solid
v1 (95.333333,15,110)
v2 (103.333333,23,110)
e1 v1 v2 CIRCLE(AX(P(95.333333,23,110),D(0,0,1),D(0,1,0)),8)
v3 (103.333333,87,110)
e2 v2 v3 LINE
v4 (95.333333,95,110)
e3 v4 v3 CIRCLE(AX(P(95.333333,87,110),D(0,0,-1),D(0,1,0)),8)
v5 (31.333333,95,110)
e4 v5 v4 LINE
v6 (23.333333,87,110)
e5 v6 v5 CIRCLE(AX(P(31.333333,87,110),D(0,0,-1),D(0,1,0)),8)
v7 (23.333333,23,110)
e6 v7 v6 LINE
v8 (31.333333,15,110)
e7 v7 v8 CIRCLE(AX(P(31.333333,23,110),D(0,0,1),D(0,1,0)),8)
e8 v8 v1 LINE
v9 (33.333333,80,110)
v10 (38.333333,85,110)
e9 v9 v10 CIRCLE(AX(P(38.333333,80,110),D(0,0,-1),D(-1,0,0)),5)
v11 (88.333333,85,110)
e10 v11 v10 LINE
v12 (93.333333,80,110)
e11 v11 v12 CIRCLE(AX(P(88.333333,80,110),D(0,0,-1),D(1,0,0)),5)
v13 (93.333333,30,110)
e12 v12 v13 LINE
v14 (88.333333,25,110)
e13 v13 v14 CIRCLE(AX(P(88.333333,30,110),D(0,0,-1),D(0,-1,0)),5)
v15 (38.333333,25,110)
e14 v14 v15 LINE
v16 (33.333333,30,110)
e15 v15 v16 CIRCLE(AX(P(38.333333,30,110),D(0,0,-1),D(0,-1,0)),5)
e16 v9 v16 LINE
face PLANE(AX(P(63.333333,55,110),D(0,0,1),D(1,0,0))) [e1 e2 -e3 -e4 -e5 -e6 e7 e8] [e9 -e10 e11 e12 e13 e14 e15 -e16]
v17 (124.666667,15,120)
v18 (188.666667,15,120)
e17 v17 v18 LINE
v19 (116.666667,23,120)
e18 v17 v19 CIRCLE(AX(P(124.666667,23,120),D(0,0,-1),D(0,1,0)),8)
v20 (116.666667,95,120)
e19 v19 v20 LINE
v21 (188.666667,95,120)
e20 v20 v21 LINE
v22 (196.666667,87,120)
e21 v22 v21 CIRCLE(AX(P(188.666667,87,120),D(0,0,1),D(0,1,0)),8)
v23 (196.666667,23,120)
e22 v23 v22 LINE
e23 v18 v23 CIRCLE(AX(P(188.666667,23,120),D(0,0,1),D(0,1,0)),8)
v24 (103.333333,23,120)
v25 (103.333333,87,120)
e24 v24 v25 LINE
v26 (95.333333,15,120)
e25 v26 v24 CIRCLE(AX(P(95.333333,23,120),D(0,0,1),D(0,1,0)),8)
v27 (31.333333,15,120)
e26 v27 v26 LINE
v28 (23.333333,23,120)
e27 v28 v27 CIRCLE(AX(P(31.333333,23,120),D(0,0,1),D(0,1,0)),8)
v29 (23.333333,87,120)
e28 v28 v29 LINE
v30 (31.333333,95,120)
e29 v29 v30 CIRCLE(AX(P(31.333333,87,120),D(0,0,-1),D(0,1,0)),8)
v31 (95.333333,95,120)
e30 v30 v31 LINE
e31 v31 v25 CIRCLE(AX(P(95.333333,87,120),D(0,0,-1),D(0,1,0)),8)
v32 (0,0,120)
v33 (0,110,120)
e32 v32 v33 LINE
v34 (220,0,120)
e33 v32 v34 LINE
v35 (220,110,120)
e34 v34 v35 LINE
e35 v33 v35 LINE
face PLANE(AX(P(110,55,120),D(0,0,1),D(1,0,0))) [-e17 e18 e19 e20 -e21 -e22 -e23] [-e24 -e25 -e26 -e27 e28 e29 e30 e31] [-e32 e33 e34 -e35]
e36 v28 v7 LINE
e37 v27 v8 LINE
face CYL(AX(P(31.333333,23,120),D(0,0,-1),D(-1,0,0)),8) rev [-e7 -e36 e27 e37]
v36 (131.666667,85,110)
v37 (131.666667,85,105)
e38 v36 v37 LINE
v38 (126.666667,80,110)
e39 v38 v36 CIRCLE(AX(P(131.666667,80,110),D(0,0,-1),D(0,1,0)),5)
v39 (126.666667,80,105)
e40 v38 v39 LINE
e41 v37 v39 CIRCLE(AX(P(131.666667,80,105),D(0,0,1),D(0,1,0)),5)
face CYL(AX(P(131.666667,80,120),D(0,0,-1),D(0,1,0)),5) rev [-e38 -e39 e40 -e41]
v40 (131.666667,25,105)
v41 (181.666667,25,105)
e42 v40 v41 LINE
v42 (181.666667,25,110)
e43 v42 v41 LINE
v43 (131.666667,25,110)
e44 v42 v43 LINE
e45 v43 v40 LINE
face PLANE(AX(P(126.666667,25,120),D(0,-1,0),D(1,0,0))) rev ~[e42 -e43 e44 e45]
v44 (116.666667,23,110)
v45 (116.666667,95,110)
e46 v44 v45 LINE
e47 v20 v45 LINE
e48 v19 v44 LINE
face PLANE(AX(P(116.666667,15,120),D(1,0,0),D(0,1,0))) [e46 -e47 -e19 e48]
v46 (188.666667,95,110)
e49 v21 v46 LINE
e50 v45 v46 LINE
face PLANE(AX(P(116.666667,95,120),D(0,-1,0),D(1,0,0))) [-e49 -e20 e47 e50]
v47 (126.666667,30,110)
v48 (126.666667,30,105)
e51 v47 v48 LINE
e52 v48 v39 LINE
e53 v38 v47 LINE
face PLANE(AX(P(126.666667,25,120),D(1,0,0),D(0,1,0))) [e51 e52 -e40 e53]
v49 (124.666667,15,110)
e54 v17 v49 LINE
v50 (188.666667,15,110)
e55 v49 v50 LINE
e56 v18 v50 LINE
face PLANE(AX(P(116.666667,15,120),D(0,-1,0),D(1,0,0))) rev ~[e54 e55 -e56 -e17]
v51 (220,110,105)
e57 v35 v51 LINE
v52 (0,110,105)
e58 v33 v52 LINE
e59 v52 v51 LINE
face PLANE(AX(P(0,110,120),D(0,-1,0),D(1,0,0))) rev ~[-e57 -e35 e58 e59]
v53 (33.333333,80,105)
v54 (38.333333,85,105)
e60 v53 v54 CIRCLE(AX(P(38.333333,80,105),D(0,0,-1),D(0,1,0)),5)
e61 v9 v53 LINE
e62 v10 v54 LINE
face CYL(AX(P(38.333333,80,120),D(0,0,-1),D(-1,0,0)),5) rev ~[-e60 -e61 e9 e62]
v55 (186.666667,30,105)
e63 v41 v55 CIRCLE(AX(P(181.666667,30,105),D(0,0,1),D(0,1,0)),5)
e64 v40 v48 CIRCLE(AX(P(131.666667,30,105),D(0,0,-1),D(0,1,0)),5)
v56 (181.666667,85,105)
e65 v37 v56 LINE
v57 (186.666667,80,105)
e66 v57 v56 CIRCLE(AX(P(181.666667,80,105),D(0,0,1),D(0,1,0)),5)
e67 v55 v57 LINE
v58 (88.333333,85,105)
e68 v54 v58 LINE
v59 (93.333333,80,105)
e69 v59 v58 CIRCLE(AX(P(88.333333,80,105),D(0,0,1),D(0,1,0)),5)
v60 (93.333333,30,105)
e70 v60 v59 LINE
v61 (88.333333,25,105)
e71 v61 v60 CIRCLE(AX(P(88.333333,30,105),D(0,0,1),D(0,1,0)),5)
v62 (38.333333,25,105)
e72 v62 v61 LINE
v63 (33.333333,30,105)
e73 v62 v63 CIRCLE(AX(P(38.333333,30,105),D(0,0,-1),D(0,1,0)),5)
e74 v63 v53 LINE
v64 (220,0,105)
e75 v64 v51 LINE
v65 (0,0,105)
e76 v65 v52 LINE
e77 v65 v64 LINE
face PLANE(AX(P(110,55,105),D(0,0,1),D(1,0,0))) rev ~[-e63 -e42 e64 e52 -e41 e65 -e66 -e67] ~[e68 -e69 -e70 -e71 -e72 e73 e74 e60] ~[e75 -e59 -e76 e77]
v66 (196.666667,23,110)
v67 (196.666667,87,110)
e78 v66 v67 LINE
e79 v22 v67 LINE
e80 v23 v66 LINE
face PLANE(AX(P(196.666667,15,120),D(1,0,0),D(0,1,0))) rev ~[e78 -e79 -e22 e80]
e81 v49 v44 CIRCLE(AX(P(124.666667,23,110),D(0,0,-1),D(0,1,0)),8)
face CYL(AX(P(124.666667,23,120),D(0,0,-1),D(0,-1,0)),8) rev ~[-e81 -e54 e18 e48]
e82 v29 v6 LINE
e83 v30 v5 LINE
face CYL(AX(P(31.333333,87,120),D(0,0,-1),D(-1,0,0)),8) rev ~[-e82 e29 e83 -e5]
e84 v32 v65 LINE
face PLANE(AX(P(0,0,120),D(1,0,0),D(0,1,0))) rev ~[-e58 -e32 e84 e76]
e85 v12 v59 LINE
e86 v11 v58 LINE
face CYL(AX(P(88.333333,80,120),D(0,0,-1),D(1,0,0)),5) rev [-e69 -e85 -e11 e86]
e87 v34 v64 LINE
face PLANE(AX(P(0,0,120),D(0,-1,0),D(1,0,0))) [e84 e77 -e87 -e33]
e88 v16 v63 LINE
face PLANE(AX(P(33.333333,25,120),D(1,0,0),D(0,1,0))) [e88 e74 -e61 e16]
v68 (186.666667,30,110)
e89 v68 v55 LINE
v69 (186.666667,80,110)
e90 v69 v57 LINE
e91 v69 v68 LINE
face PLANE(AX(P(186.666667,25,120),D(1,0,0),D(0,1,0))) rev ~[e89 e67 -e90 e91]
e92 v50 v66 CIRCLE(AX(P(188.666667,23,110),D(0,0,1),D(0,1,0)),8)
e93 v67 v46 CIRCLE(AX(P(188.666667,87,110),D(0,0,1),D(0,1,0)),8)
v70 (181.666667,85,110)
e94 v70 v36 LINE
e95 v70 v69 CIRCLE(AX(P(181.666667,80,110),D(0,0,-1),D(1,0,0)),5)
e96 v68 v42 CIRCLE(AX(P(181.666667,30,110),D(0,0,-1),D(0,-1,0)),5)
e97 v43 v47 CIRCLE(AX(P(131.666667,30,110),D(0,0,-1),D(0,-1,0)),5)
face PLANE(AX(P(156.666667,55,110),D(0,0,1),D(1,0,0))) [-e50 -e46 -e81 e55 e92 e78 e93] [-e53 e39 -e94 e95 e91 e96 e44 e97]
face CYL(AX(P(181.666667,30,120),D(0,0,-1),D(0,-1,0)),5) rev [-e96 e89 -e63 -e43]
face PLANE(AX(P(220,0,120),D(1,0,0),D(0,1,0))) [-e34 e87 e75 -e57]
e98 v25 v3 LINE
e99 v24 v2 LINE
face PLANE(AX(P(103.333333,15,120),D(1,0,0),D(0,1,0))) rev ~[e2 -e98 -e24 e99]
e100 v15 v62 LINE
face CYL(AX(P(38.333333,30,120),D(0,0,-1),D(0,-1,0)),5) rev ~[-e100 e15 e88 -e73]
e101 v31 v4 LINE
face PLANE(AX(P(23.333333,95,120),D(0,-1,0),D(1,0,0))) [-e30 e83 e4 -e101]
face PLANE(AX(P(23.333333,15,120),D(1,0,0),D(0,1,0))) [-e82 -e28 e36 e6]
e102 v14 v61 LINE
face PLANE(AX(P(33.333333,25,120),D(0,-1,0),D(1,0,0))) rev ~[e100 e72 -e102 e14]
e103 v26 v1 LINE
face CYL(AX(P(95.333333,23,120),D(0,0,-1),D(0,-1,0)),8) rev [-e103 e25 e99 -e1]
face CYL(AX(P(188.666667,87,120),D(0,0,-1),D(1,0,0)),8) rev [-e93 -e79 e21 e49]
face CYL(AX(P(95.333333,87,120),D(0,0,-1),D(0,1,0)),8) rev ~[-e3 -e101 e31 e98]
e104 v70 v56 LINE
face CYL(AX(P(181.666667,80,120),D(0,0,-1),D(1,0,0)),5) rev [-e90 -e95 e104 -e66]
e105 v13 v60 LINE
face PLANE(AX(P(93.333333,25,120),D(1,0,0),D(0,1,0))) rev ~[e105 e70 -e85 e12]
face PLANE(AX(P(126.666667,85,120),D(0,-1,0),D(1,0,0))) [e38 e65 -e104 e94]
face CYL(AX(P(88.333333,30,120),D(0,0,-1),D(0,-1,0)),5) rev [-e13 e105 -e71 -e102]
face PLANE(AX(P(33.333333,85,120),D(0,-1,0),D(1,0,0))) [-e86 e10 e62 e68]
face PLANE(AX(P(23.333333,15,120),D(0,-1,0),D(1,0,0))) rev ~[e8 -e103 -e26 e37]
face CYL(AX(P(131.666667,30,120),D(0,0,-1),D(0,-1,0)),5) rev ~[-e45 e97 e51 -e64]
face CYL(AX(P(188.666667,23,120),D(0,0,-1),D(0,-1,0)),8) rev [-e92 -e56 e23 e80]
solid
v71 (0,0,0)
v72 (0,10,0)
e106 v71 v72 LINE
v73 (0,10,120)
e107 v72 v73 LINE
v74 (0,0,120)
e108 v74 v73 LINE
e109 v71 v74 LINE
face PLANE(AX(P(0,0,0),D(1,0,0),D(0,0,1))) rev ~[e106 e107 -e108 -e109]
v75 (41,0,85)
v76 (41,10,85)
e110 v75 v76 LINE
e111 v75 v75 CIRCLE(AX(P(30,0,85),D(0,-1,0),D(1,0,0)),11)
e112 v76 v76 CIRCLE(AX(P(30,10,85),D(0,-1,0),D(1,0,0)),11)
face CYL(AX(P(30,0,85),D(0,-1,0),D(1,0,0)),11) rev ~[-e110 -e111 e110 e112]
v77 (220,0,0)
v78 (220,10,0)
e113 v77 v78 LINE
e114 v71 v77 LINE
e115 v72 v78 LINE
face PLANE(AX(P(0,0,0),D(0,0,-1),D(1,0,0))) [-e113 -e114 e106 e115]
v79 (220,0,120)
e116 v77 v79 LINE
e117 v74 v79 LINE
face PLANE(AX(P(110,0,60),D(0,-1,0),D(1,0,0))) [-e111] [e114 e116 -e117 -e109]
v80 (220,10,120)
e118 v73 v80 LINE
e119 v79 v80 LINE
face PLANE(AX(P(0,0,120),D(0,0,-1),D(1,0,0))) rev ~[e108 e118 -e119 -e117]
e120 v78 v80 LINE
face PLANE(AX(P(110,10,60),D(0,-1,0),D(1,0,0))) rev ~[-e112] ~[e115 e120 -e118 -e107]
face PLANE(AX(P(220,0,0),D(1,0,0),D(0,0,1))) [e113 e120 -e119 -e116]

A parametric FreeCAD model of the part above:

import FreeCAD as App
import Part
import Sketcher

V = App.Vector
Q = App.Units.Quantity


def edges_at(feature, points):
    """Names of the edges that pass closest to the given points."""
    edges = feature.Shape.Edges
    near = lambda p: min(range(len(edges)), key=lambda i: edges[i].distToShape(Part.Vertex(*p))[0])
    return sorted({f"Edge{near(p) + 1}" for p in points})


def add_polygon(sketch, points):
    """Adds a closed chain of lines whose ends are joined by coincident constraints."""
    first, n = sketch.GeometryCount, len(points)
    for a, b in zip(points, points[1:] + points[:1]):
        sketch.addGeometry(Part.LineSegment(App.Vector(*a, 0), App.Vector(*b, 0)), False)
    for i in range(n):
        sketch.addConstraint(Sketcher.Constraint("Coincident", first + i, 2, first + (i + 1) % n, 1))

doc = App.newDocument("Part")
body = doc.addObject("PartDesign::Body", "Body")

# Sketch on XY plane
sketch1 = body.newObject("Sketcher::SketchObject", "Sketch")
sketch1.AttachmentSupport = (doc.getObject("XY_Plane"), [""])
sketch1.MapMode = "FlatFace"
sketch1.AttachmentOffset = App.Placement(V(0, 0, 120), App.Rotation())
add_polygon(sketch1, [(0, 110), (0, 0), (220, 0), (220, 110)])  # lines 0-3
add_polygon(sketch1, [(93.333333, 25), (33.333333, 25), (33.333333, 85), (93.333333, 85)])  # lines 4-7
add_polygon(sketch1, [(186.666667, 25), (126.666667, 25), (126.666667, 85), (186.666667, 85)])  # lines 8-11
sketch1.addConstraint([
    Sketcher.Constraint("Vertical", 0),
    Sketcher.Constraint("Horizontal", 1),
    Sketcher.Constraint("Vertical", 2),
    Sketcher.Constraint("Horizontal", 3),
    Sketcher.Constraint("Horizontal", 4),
    Sketcher.Constraint("Vertical", 5),
    Sketcher.Constraint("Horizontal", 6),
    Sketcher.Constraint("Vertical", 7),
    Sketcher.Constraint("Horizontal", 8),
    Sketcher.Constraint("Vertical", 9),
    Sketcher.Constraint("Horizontal", 10),
    Sketcher.Constraint("Vertical", 11),
    Sketcher.Constraint("Coincident", 0, 2, -1, 1),
    Sketcher.Constraint("Horizontal", 7, 2, 8, 2),
    Sketcher.Constraint("Horizontal", 6, 2, 9, 2),
    Sketcher.Constraint("Equal", 6, 8),
    Sketcher.Constraint("Equal", 10, 5),
    Sketcher.Constraint("DistanceX", 1, 1, 1, 2, Q("220 mm")),
    Sketcher.Constraint("DistanceX", 4, 2, 4, 1, Q("60 mm")),
    Sketcher.Constraint("DistanceY", 0, 2, 0, 1, Q("110 mm")),
    Sketcher.Constraint("DistanceY", -1, 1, 4, 2, Q("25 mm")),
    Sketcher.Constraint("DistanceX", -1, 1, 4, 2, Q("33.333333 mm")),
    Sketcher.Constraint("DistanceX", -1, 1, 8, 2, Q("126.666667 mm")),
])
pad1 = body.newObject("PartDesign::Pad", "Pad")
pad1.Profile = sketch1
pad1.Length = 15
pad1.Reversed = True
doc.recompute()

fillet = body.newObject("PartDesign::Fillet", "Fillet")
fillet.Base = (pad1, edges_at(pad1, [
    (93.333, 85, 112.5),
    (186.667, 85, 112.5),
    (33.333, 85, 112.5),
    (33.333, 25, 112.5),
    (93.333, 25, 112.5),
    (186.667, 25, 112.5),
    (126.667, 25, 112.5),
    (126.667, 85, 112.5),
]))
fillet.Radius = 5

# Sketch on XY plane
sketch2 = body.newObject("Sketcher::SketchObject", "Sketch001")
sketch2.AttachmentSupport = (doc.getObject("XY_Plane"), [""])
sketch2.MapMode = "FlatFace"
sketch2.AttachmentOffset = App.Placement(V(0, 0, 120), App.Rotation())
add_polygon(sketch2, [(23.333333, 95), (23.333333, 15), (103.333333, 15), (103.333333, 95)])  # lines 0-3
add_polygon(sketch2, [(116.666667, 95), (116.666667, 15), (196.666667, 15), (196.666667, 95)])  # lines 4-7
sketch2.addConstraint([
    Sketcher.Constraint("Vertical", 0),
    Sketcher.Constraint("Horizontal", 1),
    Sketcher.Constraint("Vertical", 2),
    Sketcher.Constraint("Horizontal", 3),
    Sketcher.Constraint("Vertical", 4),
    Sketcher.Constraint("Horizontal", 5),
    Sketcher.Constraint("Vertical", 6),
    Sketcher.Constraint("Horizontal", 7),
    Sketcher.Constraint("Horizontal", 1, 2, 4, 2),
    Sketcher.Constraint("Horizontal", 3, 2, 6, 2),
    Sketcher.Constraint("Equal", 3, 5),
    Sketcher.Constraint("Equal", 7, 0),
    Sketcher.Constraint("DistanceX", 1, 1, 1, 2, Q("80 mm")),
    Sketcher.Constraint("DistanceY", -1, 1, 0, 2, Q("15 mm")),
    Sketcher.Constraint("DistanceX", -1, 1, 0, 2, Q("23.333333 mm")),
    Sketcher.Constraint("DistanceX", -1, 1, 4, 2, Q("116.666667 mm")),
])
pocket1 = body.newObject("PartDesign::Pocket", "Pocket")
pocket1.Profile = sketch2
pocket1.Length = 10
doc.recompute()

fillet2 = body.newObject("PartDesign::Fillet", "Fillet001")
fillet2.Base = (pocket1, edges_at(pocket1, [
    (103.333, 95, 115),
    (196.667, 95, 115),
    (23.333, 95, 115),
    (23.333, 15, 115),
    (103.333, 15, 115),
    (196.667, 15, 115),
    (116.667, 15, 115),
]))
fillet2.Radius = 8
body2 = doc.addObject("PartDesign::Body", "Body001")

# Sketch on XZ plane
sketch3 = body2.newObject("Sketcher::SketchObject", "Sketch002")
sketch3.AttachmentSupport = (doc.getObject("XZ_Plane001"), [""])
sketch3.MapMode = "FlatFace"
add_polygon(sketch3, [(0, 120), (0, 0), (220, 0), (220, 120)])  # lines 0-3
sketch3.addConstraint([
    Sketcher.Constraint("Vertical", 0),
    Sketcher.Constraint("Horizontal", 1),
    Sketcher.Constraint("Vertical", 2),
    Sketcher.Constraint("Horizontal", 3),
    Sketcher.Constraint("Coincident", 0, 2, -1, 1),
    Sketcher.Constraint("DistanceX", 1, 1, 1, 2, Q("220 mm")),
    Sketcher.Constraint("DistanceY", 0, 2, 0, 1, Q("120 mm")),
])
pad2 = body2.newObject("PartDesign::Pad", "Pad001")
pad2.Profile = sketch3
pad2.Length = 10
pad2.Reversed = True

# Sketch on XZ plane
sketch4 = body2.newObject("Sketcher::SketchObject", "Sketch003")
sketch4.AttachmentSupport = (doc.getObject("XZ_Plane001"), [""])
sketch4.MapMode = "FlatFace"
sketch4.addGeometry(Part.Circle(V(30, 85, 0), V(0, 0, 1), 11), False)
sketch4.addConstraint([
    Sketcher.Constraint("Diameter", 0, Q("22 mm")),
    Sketcher.Constraint("DistanceX", -1, 1, 0, 3, Q("30 mm")),
    Sketcher.Constraint("DistanceY", -1, 1, 0, 3, Q("85 mm")),
])
pocket2 = body2.newObject("PartDesign::Pocket", "Pocket001")
pocket2.Profile = sketch4
pocket2.Length = 25

doc.recompute()
